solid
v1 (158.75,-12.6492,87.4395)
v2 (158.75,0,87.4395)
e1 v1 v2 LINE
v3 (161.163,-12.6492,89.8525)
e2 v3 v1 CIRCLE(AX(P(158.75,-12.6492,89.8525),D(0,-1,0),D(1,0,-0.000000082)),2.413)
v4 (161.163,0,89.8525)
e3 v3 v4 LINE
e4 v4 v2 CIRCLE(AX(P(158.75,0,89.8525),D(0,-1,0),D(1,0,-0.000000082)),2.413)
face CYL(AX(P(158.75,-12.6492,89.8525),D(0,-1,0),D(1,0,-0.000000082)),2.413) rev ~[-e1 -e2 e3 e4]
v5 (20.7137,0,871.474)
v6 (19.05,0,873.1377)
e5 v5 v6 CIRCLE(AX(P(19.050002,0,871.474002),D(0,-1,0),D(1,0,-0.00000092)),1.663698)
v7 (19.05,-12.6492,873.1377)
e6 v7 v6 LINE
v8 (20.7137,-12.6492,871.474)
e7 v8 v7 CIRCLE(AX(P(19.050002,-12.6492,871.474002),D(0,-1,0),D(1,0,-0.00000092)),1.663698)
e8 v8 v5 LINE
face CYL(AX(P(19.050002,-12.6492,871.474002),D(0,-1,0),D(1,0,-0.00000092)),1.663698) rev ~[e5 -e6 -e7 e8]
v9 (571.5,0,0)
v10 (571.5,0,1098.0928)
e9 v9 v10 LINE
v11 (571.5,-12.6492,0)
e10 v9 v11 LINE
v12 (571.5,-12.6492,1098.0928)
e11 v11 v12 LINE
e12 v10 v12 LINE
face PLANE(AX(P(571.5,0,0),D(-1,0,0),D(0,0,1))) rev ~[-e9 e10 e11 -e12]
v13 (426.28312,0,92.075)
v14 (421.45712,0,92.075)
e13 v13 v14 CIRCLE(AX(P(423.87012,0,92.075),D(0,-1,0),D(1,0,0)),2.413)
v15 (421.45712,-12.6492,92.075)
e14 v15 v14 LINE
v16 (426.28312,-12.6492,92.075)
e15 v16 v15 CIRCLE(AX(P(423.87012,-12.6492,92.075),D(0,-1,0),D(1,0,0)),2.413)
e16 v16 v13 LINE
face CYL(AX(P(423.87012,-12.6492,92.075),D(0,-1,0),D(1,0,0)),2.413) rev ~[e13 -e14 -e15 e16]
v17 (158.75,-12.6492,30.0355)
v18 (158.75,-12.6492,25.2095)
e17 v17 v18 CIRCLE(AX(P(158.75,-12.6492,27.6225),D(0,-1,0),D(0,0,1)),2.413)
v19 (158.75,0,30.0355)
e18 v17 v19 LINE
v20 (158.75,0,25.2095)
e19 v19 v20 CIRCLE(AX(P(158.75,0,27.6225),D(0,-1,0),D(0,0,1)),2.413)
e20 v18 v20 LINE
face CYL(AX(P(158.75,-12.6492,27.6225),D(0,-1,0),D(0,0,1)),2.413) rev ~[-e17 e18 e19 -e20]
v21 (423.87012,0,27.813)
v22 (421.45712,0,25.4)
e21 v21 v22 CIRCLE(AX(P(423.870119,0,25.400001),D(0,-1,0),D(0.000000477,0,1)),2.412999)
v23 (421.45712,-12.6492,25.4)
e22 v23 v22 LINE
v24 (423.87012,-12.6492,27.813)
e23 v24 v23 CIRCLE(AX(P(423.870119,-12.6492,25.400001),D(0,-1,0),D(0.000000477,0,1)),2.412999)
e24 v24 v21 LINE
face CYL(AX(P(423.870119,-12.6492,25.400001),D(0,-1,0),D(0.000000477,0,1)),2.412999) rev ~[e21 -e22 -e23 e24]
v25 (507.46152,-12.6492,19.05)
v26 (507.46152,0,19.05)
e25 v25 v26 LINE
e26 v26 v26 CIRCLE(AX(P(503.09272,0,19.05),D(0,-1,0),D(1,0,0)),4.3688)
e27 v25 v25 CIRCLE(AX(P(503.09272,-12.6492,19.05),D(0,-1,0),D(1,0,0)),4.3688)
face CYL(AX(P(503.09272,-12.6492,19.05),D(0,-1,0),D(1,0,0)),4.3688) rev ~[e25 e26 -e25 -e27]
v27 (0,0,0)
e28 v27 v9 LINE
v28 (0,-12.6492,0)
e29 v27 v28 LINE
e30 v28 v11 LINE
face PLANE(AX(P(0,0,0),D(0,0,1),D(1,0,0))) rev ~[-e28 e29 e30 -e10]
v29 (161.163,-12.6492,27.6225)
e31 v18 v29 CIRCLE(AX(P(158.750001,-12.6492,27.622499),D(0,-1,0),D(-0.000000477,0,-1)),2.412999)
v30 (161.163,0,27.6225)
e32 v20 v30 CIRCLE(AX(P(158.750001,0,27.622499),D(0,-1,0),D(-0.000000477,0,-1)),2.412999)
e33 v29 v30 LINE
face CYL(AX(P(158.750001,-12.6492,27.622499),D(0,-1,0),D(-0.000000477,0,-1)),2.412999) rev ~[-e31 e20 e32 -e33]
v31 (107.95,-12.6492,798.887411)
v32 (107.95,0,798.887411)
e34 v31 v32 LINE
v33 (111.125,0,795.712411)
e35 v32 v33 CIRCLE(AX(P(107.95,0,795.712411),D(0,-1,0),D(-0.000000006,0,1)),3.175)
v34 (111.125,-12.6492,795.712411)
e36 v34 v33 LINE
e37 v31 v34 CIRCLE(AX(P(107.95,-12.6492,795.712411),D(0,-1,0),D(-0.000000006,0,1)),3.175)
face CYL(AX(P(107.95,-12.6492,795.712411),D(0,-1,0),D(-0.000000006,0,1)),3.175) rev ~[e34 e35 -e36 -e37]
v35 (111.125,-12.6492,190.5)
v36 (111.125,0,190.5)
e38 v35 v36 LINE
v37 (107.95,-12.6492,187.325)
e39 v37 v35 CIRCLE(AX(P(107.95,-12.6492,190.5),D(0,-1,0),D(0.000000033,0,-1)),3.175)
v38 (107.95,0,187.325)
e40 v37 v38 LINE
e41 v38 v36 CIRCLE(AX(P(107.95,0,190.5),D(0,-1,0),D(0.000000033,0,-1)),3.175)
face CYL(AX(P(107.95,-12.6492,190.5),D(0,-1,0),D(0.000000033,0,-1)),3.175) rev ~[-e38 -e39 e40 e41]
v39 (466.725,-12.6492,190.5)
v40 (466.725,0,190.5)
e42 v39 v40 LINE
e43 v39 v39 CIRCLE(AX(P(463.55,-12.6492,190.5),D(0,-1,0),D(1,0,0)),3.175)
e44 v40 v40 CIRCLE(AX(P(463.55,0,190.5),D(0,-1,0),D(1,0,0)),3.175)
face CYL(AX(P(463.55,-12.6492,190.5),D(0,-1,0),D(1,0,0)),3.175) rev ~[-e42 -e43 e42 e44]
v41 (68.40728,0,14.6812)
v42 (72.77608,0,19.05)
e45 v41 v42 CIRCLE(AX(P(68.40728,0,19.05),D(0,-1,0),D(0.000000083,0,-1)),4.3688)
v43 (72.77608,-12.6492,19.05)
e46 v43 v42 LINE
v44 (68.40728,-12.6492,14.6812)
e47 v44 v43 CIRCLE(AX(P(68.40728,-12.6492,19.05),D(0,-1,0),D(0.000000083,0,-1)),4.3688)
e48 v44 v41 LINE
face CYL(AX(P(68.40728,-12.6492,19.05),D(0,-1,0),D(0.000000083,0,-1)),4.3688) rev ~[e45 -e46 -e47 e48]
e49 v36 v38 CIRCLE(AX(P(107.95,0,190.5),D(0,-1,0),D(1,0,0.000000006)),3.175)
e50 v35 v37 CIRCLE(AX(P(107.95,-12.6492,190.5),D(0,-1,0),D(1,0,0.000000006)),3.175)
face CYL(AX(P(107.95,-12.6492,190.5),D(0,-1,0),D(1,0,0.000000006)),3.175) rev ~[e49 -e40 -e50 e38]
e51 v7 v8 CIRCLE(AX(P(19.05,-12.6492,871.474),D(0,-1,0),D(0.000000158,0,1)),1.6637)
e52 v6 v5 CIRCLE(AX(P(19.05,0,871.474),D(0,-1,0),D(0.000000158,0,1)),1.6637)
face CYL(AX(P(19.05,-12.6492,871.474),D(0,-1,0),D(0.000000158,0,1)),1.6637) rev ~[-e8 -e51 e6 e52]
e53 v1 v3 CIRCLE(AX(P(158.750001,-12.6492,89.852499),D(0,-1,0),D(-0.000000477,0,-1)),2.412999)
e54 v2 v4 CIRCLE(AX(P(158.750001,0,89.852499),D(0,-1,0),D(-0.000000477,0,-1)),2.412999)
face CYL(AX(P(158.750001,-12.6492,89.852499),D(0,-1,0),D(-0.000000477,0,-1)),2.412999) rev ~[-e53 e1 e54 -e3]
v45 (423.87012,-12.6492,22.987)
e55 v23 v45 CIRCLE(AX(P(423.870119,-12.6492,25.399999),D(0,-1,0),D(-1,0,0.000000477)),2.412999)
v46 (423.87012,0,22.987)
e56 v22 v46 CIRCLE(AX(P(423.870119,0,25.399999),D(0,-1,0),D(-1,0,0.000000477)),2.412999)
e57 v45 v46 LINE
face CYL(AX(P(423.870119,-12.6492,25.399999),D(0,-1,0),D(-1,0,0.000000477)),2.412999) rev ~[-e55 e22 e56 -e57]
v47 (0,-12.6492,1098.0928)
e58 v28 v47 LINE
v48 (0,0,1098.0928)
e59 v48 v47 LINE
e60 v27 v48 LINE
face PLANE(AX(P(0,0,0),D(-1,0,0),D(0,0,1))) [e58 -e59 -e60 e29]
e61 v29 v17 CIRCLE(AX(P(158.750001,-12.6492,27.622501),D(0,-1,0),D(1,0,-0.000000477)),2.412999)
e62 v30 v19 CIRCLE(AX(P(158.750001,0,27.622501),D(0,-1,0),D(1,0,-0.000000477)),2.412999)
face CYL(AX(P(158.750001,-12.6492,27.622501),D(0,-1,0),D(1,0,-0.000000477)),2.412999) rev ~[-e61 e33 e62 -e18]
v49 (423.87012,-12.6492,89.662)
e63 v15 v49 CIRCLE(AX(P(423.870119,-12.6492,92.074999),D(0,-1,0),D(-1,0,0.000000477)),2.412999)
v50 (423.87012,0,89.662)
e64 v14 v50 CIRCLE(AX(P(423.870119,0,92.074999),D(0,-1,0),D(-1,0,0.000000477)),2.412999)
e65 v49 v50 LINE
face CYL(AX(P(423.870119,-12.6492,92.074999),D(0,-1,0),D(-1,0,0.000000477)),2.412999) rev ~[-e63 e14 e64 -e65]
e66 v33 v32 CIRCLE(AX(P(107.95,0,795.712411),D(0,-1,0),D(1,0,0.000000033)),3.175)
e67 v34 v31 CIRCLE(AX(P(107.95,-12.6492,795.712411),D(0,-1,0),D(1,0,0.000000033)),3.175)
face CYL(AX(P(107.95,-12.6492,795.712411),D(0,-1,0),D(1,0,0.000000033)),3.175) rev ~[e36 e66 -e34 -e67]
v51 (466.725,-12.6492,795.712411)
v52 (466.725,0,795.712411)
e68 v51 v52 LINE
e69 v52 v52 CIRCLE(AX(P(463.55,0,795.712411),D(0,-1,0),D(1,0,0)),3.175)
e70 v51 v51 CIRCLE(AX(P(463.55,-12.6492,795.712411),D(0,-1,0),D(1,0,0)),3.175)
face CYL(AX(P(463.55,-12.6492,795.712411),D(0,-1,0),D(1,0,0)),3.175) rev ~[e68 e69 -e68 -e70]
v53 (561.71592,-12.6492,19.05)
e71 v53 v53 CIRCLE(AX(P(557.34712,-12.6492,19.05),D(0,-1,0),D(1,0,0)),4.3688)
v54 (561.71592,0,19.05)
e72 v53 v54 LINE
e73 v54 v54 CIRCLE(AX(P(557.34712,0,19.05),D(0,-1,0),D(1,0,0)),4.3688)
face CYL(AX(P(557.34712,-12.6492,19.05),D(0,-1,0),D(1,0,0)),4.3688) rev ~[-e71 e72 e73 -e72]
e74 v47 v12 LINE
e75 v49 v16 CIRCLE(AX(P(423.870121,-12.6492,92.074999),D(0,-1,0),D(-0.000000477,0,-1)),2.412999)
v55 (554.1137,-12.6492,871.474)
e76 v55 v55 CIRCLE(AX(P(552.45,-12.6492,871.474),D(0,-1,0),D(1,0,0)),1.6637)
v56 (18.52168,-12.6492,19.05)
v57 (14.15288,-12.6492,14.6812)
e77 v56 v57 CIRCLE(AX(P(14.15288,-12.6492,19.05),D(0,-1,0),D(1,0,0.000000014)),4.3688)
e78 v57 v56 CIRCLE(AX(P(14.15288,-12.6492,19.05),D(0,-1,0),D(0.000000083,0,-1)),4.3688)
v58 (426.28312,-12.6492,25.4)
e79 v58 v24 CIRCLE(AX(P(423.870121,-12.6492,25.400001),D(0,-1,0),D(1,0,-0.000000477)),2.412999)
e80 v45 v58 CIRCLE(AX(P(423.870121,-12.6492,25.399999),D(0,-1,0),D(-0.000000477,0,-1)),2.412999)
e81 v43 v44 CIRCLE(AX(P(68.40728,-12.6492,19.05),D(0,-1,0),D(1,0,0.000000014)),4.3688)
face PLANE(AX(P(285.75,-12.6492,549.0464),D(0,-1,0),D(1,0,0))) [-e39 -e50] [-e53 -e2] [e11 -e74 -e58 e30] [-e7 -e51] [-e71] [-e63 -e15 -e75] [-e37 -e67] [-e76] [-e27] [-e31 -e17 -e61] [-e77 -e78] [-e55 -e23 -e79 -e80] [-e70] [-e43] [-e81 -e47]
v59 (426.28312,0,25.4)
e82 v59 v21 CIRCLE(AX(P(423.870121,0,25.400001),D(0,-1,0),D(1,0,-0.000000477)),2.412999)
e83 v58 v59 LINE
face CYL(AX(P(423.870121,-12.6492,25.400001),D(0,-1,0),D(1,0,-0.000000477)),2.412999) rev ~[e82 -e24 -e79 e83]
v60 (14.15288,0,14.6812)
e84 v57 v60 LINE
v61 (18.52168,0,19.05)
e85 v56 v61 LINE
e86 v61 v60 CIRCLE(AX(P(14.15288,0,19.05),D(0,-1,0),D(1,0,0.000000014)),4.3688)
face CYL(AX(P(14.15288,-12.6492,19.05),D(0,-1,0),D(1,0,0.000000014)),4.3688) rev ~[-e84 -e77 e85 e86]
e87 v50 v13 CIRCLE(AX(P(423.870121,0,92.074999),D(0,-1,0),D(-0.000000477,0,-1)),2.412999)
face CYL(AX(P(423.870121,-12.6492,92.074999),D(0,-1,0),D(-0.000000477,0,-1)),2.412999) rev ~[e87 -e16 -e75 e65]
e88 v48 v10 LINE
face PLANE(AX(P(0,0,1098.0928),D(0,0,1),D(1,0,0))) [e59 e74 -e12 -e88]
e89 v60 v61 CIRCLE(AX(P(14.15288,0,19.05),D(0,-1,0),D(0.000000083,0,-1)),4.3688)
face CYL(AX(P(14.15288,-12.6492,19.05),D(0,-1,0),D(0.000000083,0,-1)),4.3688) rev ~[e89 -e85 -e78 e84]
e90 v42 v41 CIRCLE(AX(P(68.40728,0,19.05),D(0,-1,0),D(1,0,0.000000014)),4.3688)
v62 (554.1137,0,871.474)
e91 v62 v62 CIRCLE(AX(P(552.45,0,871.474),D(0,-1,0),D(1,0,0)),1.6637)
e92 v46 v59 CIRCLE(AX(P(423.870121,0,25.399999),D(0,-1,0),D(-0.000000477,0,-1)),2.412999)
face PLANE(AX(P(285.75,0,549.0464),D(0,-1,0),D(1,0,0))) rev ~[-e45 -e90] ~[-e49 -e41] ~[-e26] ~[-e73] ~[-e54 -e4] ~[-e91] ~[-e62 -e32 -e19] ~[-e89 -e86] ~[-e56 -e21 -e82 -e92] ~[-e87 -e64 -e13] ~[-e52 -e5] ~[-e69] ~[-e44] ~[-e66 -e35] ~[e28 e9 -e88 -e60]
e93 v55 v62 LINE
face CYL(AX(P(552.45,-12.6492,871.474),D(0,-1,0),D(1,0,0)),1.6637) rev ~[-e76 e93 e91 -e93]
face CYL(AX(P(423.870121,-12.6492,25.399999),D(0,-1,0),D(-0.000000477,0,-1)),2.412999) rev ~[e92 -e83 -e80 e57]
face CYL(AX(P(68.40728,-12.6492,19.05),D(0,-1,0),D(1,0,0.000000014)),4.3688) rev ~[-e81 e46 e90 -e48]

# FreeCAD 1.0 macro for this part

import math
import FreeCAD as App
import Part
import Sketcher

V = App.Vector
Q = App.Units.Quantity

doc = App.newDocument("Part")
params = doc.addObject("Spreadsheet::Sheet", "Params")
for row, (alias, value) in enumerate([
    ("sketch1_width", "22.5 in"),
    ("sketch1_height", "43.232 in"),
    ("pad1_length", "0.498 in"),
    ("sketch2_diameter", "0.25 in"),
    ("sketch2_diameter2", "0.344 in"),
    ("sketch2_diameter3", "0.131 in"),
    ("sketch2_radius", "0.095 in"),
    ("pocket1_length", "0.498 in"),
], start=1):
    params.set(f"A{row}", alias)
    params.set(f"B{row}", "=" + value)
    params.setAlias(f"B{row}", alias)

body = doc.addObject("PartDesign::Body", "Body")

sketch1 = doc.addObject("Sketcher::SketchObject", "Sketch")
body.addObject(sketch1)
sketch1.AttachmentSupport = (doc.XZ_Plane, [""])
sketch1.MapMode = "FlatFace"
sketch1.addGeometry([
    Part.LineSegment(V(0, 1098, 0), V(0, 0, 0)),
    Part.LineSegment(V(0, 0, 0), V(572, 0, 0)),
    Part.LineSegment(V(572, 0, 0), V(572, 1098, 0)),
    Part.LineSegment(V(572, 1098, 0), V(0, 1098, 0)),
], False)
sketch1.addConstraint([
    Sketcher.Constraint("Coincident", 0, 2, 1, 1),
    Sketcher.Constraint("Coincident", 1, 2, 2, 1),
    Sketcher.Constraint("Coincident", 2, 2, 3, 1),
    Sketcher.Constraint("Coincident", 3, 2, 0, 1),
    Sketcher.Constraint("Vertical", 0),
    Sketcher.Constraint("Horizontal", 1),
    Sketcher.Constraint("Vertical", 2),
    Sketcher.Constraint("Horizontal", 3),
    Sketcher.Constraint("Coincident", 0, 2, -1, 1),
    Sketcher.Constraint("DistanceX", 1, 1, 1, 2, Q("22.5 in")),
    Sketcher.Constraint("DistanceY", 0, 2, 0, 1, Q("43.232 in")),
])
sketch1.setExpression("Constraints[9]", "Params.sketch1_width")
sketch1.setExpression("Constraints[10]", "Params.sketch1_height")
pad1 = doc.addObject("PartDesign::Pad", "Pad")
body.addObject(pad1)
pad1.Profile = sketch1
pad1.setExpression("Length", "Params.pad1_length")

sketch2 = doc.addObject("Sketcher::SketchObject", "Sketch001")
body.addObject(sketch2)
sketch2.AttachmentSupport = (doc.XZ_Plane, [""])
sketch2.MapMode = "FlatFace"
sketch2.AttachmentOffset = App.Placement(V(0, 0, 0.498 * 25.4), App.Rotation())
sketch2.addGeometry([
    Part.ArcOfCircle(Part.Circle(V(14.2, 19.1, 0), V(0, 0, 1), 4.4), math.radians(-90), math.radians(0)),
    Part.ArcOfCircle(Part.Circle(V(14.2, 19, 0), V(0, 0, 1), 4.4), math.radians(0), math.radians(270)),
    Part.ArcOfCircle(Part.Circle(V(68.4, 19, 0), V(0, 0, 1), 4.4), math.radians(0), math.radians(270)),
    Part.ArcOfCircle(Part.Circle(V(68.4, 19.1, 0), V(0, 0, 1), 4.4), math.radians(-90), math.radians(0)),
    Part.ArcOfCircle(Part.Circle(V(108, 190.5, 0), V(0, 0, 1), 3.2), math.radians(0), math.radians(270)),
    Part.ArcOfCircle(Part.Circle(V(107.9, 190.5, 0), V(0, 0, 1), 3.2), math.radians(-90), math.radians(0)),
    Part.ArcOfCircle(Part.Circle(V(158.7, 89.9, 0), V(0, 0, 1), 2.4), math.radians(0), math.radians(270)),
    Part.ArcOfCircle(Part.Circle(V(158.8, 89.9, 0), V(0, 0, 1), 2.4), math.radians(-90), math.radians(0)),
    Part.ArcOfCircle(Part.Circle(V(158.8, 27.6, 0), V(0, 0, 1), 2.4), math.radians(90), math.radians(270)),
    Part.ArcOfCircle(Part.Circle(V(158.8, 27.6, 0), V(0, 0, 1), 2.4), math.radians(-90), math.radians(0)),
    Part.ArcOfCircle(Part.Circle(V(158.8, 27.6, 0), V(0, 0, 1), 2.4), math.radians(0), math.radians(90)),
    Part.ArcOfCircle(Part.Circle(V(423.9, 92.1, 0), V(0, 0, 1), 2.4), math.radians(180), math.radians(270)),
    Part.ArcOfCircle(Part.Circle(V(423.9, 92.1, 0), V(0, 0, 1), 2.4), math.radians(-90), math.radians(0)),
    Part.ArcOfCircle(Part.Circle(V(423.9, 92.1, 0), V(0, 0, 1), 2.4), math.radians(0), math.radians(180)),
    Part.ArcOfCircle(Part.Circle(V(423.9, 25.4, 0), V(0, 0, 1), 2.4), math.radians(180), math.radians(270)),
    Part.ArcOfCircle(Part.Circle(V(423.9, 25.4, 0), V(0, 0, 1), 2.4), math.radians(-90), math.radians(0)),
    Part.ArcOfCircle(Part.Circle(V(423.9, 25.4, 0), V(0, 0, 1), 2.4), math.radians(0), math.radians(90)),
    Part.ArcOfCircle(Part.Circle(V(423.9, 25.4, 0), V(0, 0, 1), 2.4), math.radians(90), math.radians(180)),
    Part.ArcOfCircle(Part.Circle(V(107.9, 795.7, 0), V(0, 0, 1), 3.2), math.radians(0), math.radians(90)),
    Part.ArcOfCircle(Part.Circle(V(108, 795.7, 0), V(0, 0, 1), 3.2), math.radians(90), math.radians(360)),
    Part.ArcOfCircle(Part.Circle(V(19.1, 871.5, 0), V(0, 0, 1), 1.7), math.radians(0), math.radians(90)),
    Part.ArcOfCircle(Part.Circle(V(19, 871.5, 0), V(0, 0, 1), 1.7), math.radians(90), math.radians(360)),
    Part.Circle(V(503.1, 19.1, 0), V(0, 0, 1), 4.4),
    Part.Circle(V(557.3, 19.1, 0), V(0, 0, 1), 4.4),
    Part.Circle(V(463.6, 190.5, 0), V(0, 0, 1), 3.2),
    Part.Circle(V(463.6, 795.7, 0), V(0, 0, 1), 3.2),
    Part.Circle(V(552.5, 871.5, 0), V(0, 0, 1), 1.7),
], False)
sketch2.addConstraint([
    Sketcher.Constraint("Tangent", 0, 1, 1, 2),
    Sketcher.Constraint("Coincident", 1, 1, 0, 2),
    Sketcher.Constraint("Tangent", 2, 1, 3, 2),
    Sketcher.Constraint("Coincident", 3, 1, 2, 2),
    Sketcher.Constraint("Tangent", 4, 1, 5, 2),
    Sketcher.Constraint("Coincident", 5, 1, 4, 2),
    Sketcher.Constraint("Tangent", 6, 1, 7, 2),
    Sketcher.Constraint("Coincident", 7, 1, 6, 2),
    Sketcher.Constraint("Tangent", 8, 2, 9, 1),
    Sketcher.Constraint("Tangent", 9, 2, 10, 1),
    Sketcher.Constraint("Tangent", 10, 2, 8, 1),
    Sketcher.Constraint("Tangent", 11, 2, 12, 1),
    Sketcher.Constraint("Tangent", 12, 2, 13, 1),
    Sketcher.Constraint("Tangent", 13, 2, 11, 1),
    Sketcher.Constraint("Tangent", 14, 2, 15, 1),
    Sketcher.Constraint("Tangent", 15, 2, 16, 1),
    Sketcher.Constraint("Tangent", 16, 2, 17, 1),
    Sketcher.Constraint("Tangent", 17, 2, 14, 1),
    Sketcher.Constraint("Tangent", 18, 1, 19, 2),
    Sketcher.Constraint("Coincident", 19, 1, 18, 2),
    Sketcher.Constraint("Tangent", 20, 1, 21, 2),
    Sketcher.Constraint("Coincident", 21, 1, 20, 2),
    Sketcher.Constraint("Equal", 1, 2),
    Sketcher.Constraint("Equal", 7, 8),
    Sketcher.Constraint("Equal", 10, 11),
    Sketcher.Constraint("Equal", 13, 14),
    Sketcher.Constraint("Equal", 14, 15),
    Sketcher.Constraint("Equal", 5, 18),
    Sketcher.Constraint("Equal", 3, 22),
    Sketcher.Constraint("Equal", 22, 23),
    Sketcher.Constraint("Equal", 19, 24),
    Sketcher.Constraint("Equal", 24, 25),
    Sketcher.Constraint("Equal", 21, 26),
    Sketcher.Constraint("Horizontal", 1, 3, 2, 3),
    Sketcher.Constraint("Horizontal", 3, 3, 22, 3),
    Sketcher.Constraint("Horizontal", 22, 3, 23, 3),
    Sketcher.Constraint("Horizontal", 5, 3, 24, 3),
    Sketcher.Constraint("Horizontal", 19, 3, 25, 3),
    Sketcher.Constraint("Horizontal", 21, 3, 26, 3),
    Sketcher.Constraint("Horizontal", 23, 3, 1, 1),
    Sketcher.Constraint("Horizontal", 1, 1, 2, 1),
    Sketcher.Constraint("Horizontal", 24, 3, 4, 1),
    Sketcher.Constraint("Horizontal", 7, 3, 6, 1),
    Sketcher.Constraint("Horizontal", 10, 3, 9, 2),
    Sketcher.Constraint("Horizontal", 13, 3, 12, 2),
    Sketcher.Constraint("Horizontal", 12, 2, 13, 2),
    Sketcher.Constraint("Horizontal", 17, 3, 15, 2),
    Sketcher.Constraint("Horizontal", 15, 2, 17, 2),
    Sketcher.Constraint("Horizontal", 25, 3, 18, 1),
    Sketcher.Constraint("Horizontal", 26, 3, 20, 1),
    Sketcher.Constraint("Vertical", 7, 3, 8, 3),
    Sketcher.Constraint("Vertical", 13, 3, 14, 3),
    Sketcher.Constraint("Vertical", 5, 3, 18, 3),
    Sketcher.Constraint("Vertical", 24, 3, 25, 3),
    Sketcher.Constraint("Vertical", 1, 3, 0, 1),
    Sketcher.Constraint("Vertical", 2, 3, 3, 1),
    Sketcher.Constraint("Vertical", 19, 3, 5, 1),
    Sketcher.Constraint("Vertical", 10, 3, 7, 1),
    Sketcher.Constraint("Vertical", 7, 1, 8, 2),
    Sketcher.Constraint("Vertical", 8, 2, 10, 2),
    Sketcher.Constraint("Vertical", 17, 3, 11, 2),
    Sketcher.Constraint("Vertical", 11, 2, 14, 2),
    Sketcher.Constraint("Vertical", 14, 2, 16, 2),
    Sketcher.Constraint("Vertical", 5, 1, 19, 1),
    Sketcher.Constraint("Vertical", 20, 3, 21, 1),
    Sketcher.Constraint("Diameter", 24, Q("0.25 in")),
    Sketcher.Constraint("Diameter", 22, Q("0.344 in")),
    Sketcher.Constraint("Diameter", 26, Q("0.131 in")),
    Sketcher.Constraint("DistanceY", -1, 1, 14, 3, Q("1 in")),
    Sketcher.Constraint("Radius", 6, Q("0.095 in")),
    Sketcher.Constraint("DistanceX", 4, 3, 6, 3, Q("2 in")),
    Sketcher.Constraint("DistanceX", 19, 3, 25, 3, Q("14 in")),
    Sketcher.Constraint("DistanceX", 20, 3, 26, 3, Q("20.9999999 in")),
    Sketcher.Constraint("DistanceY", -1, 1, 4, 3, Q("7.5 in")),
    Sketcher.Constraint("DistanceX", 20, 3, 18, 3, Q("3.4999999 in")),
    Sketcher.Constraint("DistanceY", -1, 1, 0, 3, Q("0.75 in")),
    Sketcher.Constraint("DistanceX", -1, 1, 4, 3, Q("4.25 in")),
    Sketcher.Constraint("DistanceY", -1, 1, 20, 3, Q("34.3100001 in")),
    Sketcher.Constraint("DistanceY", -1, 1, 11, 2, Q("3.53 in")),
    Sketcher.Constraint("DistanceY", 8, 3, 7, 3, Q("2.45 in")),
    Sketcher.Constraint("DistanceX", 1, 3, 2, 3, Q("2.136 in")),
    Sketcher.Constraint("DistanceX", 15, 3, 22, 3, Q("3.119 in")),
    Sketcher.Constraint("DistanceX", 22, 3, 23, 3, Q("2.136 in")),
    Sketcher.Constraint("DistanceX", -1, 1, 0, 3, Q("0.5572 in")),
    Sketcher.Constraint("DistanceY", -1, 1, 6, 3, Q("3.5375 in")),
    Sketcher.Constraint("DistanceX", -1, 1, 11, 3, Q("16.6878 in")),
    Sketcher.Constraint("DistanceY", -1, 1, 18, 3, 795.712411),
])
sketch2.setExpression("Constraints[65]", "Params.sketch2_diameter")
sketch2.setExpression("Constraints[66]", "Params.sketch2_diameter2")
sketch2.setExpression("Constraints[67]", "Params.sketch2_diameter3")
sketch2.setExpression("Constraints[69]", "Params.sketch2_radius")
pocket1 = doc.addObject("PartDesign::Pocket", "Pocket")
body.addObject(pocket1)
pocket1.Profile = sketch2
pocket1.setExpression("Length", "Params.pocket1_length")

doc.recompute()
